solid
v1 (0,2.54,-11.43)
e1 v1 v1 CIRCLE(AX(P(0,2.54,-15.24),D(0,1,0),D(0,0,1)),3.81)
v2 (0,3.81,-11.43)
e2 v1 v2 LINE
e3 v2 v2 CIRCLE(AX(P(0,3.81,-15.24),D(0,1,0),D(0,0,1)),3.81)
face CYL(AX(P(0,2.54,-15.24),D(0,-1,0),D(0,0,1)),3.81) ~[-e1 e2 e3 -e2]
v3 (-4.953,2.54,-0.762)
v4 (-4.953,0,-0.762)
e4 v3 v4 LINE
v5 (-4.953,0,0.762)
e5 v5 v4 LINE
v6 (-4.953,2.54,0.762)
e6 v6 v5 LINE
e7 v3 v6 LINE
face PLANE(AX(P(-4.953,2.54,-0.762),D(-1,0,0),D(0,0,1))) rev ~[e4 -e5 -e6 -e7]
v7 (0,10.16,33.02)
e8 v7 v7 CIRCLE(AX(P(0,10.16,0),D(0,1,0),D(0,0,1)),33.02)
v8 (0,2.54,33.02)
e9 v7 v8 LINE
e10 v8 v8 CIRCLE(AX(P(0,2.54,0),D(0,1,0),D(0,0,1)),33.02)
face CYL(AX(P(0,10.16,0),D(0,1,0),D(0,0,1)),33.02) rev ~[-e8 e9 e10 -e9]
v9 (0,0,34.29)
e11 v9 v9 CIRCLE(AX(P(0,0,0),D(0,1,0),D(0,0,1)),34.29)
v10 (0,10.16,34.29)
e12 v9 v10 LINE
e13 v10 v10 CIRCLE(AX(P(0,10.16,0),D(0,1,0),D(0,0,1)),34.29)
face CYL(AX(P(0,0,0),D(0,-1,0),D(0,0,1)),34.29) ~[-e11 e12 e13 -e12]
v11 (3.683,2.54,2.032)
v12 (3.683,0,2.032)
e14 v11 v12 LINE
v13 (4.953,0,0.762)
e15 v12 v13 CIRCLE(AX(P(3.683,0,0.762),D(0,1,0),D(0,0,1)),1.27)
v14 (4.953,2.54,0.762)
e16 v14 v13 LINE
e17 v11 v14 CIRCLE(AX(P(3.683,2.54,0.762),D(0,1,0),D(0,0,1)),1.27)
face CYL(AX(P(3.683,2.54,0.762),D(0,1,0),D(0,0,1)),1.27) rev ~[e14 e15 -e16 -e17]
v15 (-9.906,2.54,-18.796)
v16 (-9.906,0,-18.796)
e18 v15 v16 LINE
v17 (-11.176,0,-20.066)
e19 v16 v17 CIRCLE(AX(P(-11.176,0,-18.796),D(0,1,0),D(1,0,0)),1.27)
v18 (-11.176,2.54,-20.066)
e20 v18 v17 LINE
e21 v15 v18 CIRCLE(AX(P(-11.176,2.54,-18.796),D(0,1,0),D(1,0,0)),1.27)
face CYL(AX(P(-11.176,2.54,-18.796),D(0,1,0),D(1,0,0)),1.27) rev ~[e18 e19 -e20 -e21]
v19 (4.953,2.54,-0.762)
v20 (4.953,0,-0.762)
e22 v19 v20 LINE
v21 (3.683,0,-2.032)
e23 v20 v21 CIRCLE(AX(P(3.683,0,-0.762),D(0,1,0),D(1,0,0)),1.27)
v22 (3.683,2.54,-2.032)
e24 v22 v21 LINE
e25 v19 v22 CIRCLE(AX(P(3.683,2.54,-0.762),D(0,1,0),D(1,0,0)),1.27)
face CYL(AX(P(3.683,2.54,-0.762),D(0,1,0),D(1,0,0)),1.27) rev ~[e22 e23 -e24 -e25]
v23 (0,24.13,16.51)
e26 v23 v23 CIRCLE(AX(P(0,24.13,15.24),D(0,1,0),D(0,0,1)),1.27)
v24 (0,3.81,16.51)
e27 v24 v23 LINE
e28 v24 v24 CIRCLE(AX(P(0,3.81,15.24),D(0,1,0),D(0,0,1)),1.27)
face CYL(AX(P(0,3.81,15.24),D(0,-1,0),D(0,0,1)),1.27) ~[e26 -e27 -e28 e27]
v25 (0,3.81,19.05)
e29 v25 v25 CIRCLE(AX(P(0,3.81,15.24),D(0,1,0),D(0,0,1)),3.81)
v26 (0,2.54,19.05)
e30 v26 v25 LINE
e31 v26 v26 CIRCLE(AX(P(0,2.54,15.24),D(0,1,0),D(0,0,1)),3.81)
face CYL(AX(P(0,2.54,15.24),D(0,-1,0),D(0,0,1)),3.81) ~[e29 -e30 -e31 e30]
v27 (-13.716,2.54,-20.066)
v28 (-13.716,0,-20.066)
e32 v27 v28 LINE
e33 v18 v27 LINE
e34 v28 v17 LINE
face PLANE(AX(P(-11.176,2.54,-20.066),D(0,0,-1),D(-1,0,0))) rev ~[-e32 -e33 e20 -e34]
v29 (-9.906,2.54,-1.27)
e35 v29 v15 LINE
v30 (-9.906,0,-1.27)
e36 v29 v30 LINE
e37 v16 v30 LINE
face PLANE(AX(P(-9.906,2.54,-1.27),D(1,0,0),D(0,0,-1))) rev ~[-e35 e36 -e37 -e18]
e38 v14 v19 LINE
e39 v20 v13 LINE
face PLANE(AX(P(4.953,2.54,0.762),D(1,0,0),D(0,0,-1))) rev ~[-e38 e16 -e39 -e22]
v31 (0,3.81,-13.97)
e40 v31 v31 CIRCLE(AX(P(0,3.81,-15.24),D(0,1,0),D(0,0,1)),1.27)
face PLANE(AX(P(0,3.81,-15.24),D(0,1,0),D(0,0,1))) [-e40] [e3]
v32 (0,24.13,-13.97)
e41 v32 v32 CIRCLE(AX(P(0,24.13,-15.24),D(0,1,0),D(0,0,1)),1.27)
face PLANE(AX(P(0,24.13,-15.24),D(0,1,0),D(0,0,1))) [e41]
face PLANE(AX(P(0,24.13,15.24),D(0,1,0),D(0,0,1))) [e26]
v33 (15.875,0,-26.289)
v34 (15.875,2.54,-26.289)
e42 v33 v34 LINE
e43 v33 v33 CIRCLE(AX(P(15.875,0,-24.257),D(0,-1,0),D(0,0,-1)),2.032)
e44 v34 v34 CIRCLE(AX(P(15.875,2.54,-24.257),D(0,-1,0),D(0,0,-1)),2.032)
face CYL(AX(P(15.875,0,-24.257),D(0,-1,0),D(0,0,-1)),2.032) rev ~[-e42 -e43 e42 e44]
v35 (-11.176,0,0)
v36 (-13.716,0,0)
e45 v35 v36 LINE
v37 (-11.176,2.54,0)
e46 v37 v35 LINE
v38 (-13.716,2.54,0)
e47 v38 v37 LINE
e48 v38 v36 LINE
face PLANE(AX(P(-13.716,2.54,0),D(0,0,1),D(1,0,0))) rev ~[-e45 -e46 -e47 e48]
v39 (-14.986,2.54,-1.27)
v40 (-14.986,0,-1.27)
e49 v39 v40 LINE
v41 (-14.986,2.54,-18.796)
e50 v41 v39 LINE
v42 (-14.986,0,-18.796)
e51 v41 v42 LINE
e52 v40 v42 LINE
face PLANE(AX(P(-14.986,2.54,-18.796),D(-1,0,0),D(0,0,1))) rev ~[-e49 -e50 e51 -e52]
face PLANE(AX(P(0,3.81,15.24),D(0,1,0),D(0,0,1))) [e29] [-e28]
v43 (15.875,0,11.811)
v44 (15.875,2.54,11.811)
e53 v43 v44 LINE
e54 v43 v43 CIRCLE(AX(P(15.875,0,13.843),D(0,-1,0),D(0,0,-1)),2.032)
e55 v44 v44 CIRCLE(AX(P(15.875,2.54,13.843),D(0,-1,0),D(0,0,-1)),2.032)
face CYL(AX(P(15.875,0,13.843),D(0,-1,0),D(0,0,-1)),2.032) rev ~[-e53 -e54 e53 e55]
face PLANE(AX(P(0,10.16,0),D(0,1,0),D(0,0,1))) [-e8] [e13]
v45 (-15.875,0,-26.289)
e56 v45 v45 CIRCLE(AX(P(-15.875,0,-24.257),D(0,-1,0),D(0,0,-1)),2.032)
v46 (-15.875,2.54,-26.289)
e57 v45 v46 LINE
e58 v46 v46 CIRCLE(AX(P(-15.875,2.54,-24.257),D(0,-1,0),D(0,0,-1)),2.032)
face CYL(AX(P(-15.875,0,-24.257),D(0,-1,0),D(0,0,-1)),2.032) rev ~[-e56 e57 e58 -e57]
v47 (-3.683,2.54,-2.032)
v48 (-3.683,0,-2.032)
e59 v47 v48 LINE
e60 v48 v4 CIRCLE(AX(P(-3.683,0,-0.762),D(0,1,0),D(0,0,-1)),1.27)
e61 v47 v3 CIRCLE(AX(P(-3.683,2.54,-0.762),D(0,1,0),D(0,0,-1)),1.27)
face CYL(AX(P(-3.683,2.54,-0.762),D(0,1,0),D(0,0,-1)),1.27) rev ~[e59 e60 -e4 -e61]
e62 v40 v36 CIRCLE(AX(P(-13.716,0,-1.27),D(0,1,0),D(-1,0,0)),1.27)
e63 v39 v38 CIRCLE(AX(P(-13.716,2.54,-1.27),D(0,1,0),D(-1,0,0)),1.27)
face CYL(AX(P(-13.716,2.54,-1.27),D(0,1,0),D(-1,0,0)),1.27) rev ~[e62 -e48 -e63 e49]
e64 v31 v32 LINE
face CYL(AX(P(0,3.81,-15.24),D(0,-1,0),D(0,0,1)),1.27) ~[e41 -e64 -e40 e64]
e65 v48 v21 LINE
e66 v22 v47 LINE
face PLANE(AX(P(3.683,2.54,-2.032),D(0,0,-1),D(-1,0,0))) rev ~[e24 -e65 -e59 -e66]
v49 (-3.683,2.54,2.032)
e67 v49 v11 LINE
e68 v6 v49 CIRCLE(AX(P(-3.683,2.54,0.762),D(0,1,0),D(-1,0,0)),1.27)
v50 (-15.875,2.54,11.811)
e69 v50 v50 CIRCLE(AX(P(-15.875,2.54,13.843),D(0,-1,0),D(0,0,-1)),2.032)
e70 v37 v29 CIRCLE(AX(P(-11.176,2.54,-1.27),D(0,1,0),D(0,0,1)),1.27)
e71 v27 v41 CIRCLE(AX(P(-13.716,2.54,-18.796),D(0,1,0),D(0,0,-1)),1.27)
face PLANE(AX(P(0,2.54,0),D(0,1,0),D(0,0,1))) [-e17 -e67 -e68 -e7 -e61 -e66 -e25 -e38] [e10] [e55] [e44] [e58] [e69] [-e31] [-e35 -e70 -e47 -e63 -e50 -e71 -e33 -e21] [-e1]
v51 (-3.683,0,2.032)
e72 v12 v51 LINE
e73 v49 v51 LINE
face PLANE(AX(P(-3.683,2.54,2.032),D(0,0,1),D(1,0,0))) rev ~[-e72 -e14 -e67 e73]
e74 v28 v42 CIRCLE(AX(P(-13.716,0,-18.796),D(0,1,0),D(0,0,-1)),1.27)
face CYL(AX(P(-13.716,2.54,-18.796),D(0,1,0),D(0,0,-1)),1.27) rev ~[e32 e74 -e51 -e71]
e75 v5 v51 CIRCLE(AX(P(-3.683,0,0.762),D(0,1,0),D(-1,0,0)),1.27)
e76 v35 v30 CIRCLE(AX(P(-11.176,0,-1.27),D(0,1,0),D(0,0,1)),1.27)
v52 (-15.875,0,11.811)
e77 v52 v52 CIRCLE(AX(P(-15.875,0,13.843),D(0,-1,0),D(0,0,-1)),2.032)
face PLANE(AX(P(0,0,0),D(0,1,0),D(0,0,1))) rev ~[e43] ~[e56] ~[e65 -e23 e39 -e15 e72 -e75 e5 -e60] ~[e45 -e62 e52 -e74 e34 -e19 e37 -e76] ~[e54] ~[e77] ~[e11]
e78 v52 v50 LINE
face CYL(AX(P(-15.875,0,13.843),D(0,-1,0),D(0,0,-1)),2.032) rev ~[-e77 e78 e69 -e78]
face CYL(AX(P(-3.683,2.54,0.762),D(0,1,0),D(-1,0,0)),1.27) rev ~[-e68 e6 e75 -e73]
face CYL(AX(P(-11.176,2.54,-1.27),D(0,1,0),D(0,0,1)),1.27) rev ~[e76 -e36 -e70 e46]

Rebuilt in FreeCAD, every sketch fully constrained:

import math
import FreeCAD as App
import Part
import Sketcher
Q = App.Units.Quantity

doc = App.newDocument("Part")
body = doc.addObject("PartDesign::Body", "Body")

# Sketch on XZ plane
sketch1 = body.newObject("Sketcher::SketchObject", "Sketch")
sketch1.AttachmentSupport = (doc.getObject("XZ_Plane"), [""])
sketch1.MapMode = "FlatFace"
sketch1.addGeometry(Part.Circle(App.Vector(0, 0, 0), App.Vector(0, 0, 1), 34.29), False)
sketch1.addConstraint(Sketcher.Constraint("Coincident", 0, 3, -1, 1))
sketch1.addConstraint(Sketcher.Constraint("Diameter", 0, Q("2.7 in")))
pad1 = body.newObject("PartDesign::Pad", "Pad")
pad1.Profile = sketch1
pad1.Length = Q("0.4 in")
pad1.Reversed = True

# Sketch on XZ plane
sketch2 = body.newObject("Sketcher::SketchObject", "Sketch001")
sketch2.AttachmentSupport = (doc.getObject("XZ_Plane"), [""])
sketch2.MapMode = "FlatFace"
sketch2.AttachmentOffset = App.Placement(App.Vector(0, 0, -0.4 * 25.4), App.Rotation())
sketch2.addGeometry(Part.Circle(App.Vector(0, 0, 0), App.Vector(0, 0, 1), 33.02), False)
sketch2.addConstraint(Sketcher.Constraint("Coincident", 0, 3, -1, 1))
sketch2.addConstraint(Sketcher.Constraint("Diameter", 0, Q("2.6 in")))
pocket1 = body.newObject("PartDesign::Pocket", "Pocket")
pocket1.Profile = sketch2
pocket1.Length = Q("0.3 in")
pocket1.Reversed = True

# Sketch on XZ plane
sketch3 = body.newObject("Sketcher::SketchObject", "Sketch002")
sketch3.AttachmentSupport = (doc.getObject("XZ_Plane"), [""])
sketch3.MapMode = "FlatFace"
sketch3.AttachmentOffset = App.Placement(App.Vector(0, 0, -0.1 * 25.4), App.Rotation())
sketch3.addGeometry(Part.Circle(App.Vector(0, 15.24, 0), App.Vector(0, 0, 1), 3.81), False)
sketch3.addGeometry(Part.Circle(App.Vector(0, -15.24, 0), App.Vector(0, 0, 1), 3.81), False)
sketch3.addConstraint(Sketcher.Constraint("Equal", 0, 1))
sketch3.addConstraint(Sketcher.Constraint("Symmetric", 0, 3, 1, 3, -1, 1))
sketch3.addConstraint(Sketcher.Constraint("PointOnObject", 0, 3, -2))
sketch3.addConstraint(Sketcher.Constraint("Diameter", 0, Q("0.3 in")))
sketch3.addConstraint(Sketcher.Constraint("DistanceY", -1, 1, 0, 3, Q("0.6 in")))
pad2 = body.newObject("PartDesign::Pad", "Pad001")
pad2.Profile = sketch3
pad2.Length = Q("0.05 in")
pad2.Reversed = True

# Sketch on XZ plane
sketch4 = body.newObject("Sketcher::SketchObject", "Sketch003")
sketch4.AttachmentSupport = (doc.getObject("XZ_Plane"), [""])
sketch4.MapMode = "FlatFace"
sketch4.AttachmentOffset = App.Placement(App.Vector(0, 0, -0.15 * 25.4), App.Rotation())
sketch4.addGeometry(Part.Circle(App.Vector(0, 15.24, 0), App.Vector(0, 0, 1), 1.27), False)
sketch4.addGeometry(Part.Circle(App.Vector(0, -15.24, 0), App.Vector(0, 0, 1), 1.27), False)
sketch4.addConstraint(Sketcher.Constraint("Equal", 0, 1))
sketch4.addConstraint(Sketcher.Constraint("Symmetric", 0, 3, 1, 3, -1, 1))
sketch4.addConstraint(Sketcher.Constraint("PointOnObject", 0, 3, -2))
sketch4.addConstraint(Sketcher.Constraint("Diameter", 0, Q("0.1 in")))
sketch4.addConstraint(Sketcher.Constraint("DistanceY", -1, 1, 0, 3, Q("0.6 in")))
pad3 = body.newObject("PartDesign::Pad", "Pad002")
pad3.Profile = sketch4
pad3.Length = Q("0.8 in")
pad3.Reversed = True

# Sketch on XZ plane
sketch5 = body.newObject("Sketcher::SketchObject", "Sketch004")
sketch5.AttachmentSupport = (doc.getObject("XZ_Plane"), [""])
sketch5.MapMode = "FlatFace"
sketch5.AttachmentOffset = App.Placement(App.Vector(0, 0, -0.1 * 25.4), App.Rotation())
sketch5.addGeometry(Part.LineSegment(App.Vector(3.683, -2.032, 0), App.Vector(-3.683, -2.032, 0)), False)
sketch5.addGeometry(Part.ArcOfCircle(Part.Circle(App.Vector(-3.683, -0.762, 0), App.Vector(0, 0, 1), 1.27), math.radians(180), math.radians(270)), False)
sketch5.addGeometry(Part.LineSegment(App.Vector(-4.953, -0.762, 0), App.Vector(-4.953, 0.762, 0)), False)
sketch5.addGeometry(Part.ArcOfCircle(Part.Circle(App.Vector(-3.683, 0.762, 0), App.Vector(0, 0, 1), 1.27), math.radians(90), math.radians(180)), False)
sketch5.addGeometry(Part.LineSegment(App.Vector(-3.683, 2.032, 0), App.Vector(3.683, 2.032, 0)), False)
sketch5.addGeometry(Part.ArcOfCircle(Part.Circle(App.Vector(3.683, 0.762, 0), App.Vector(0, 0, 1), 1.27), math.radians(0), math.radians(90)), False)
sketch5.addGeometry(Part.LineSegment(App.Vector(4.953, 0.762, 0), App.Vector(4.953, -0.762, 0)), False)
sketch5.addGeometry(Part.ArcOfCircle(Part.Circle(App.Vector(3.683, -0.762, 0), App.Vector(0, 0, 1), 1.27), math.radians(-90), math.radians(0)), False)
sketch5.addConstraint(Sketcher.Constraint("Tangent", 0, 2, 1, 2))
sketch5.addConstraint(Sketcher.Constraint("Tangent", 1, 1, 2, 1))
sketch5.addConstraint(Sketcher.Constraint("Tangent", 2, 2, 3, 2))
sketch5.addConstraint(Sketcher.Constraint("Tangent", 3, 1, 4, 1))
sketch5.addConstraint(Sketcher.Constraint("Tangent", 4, 2, 5, 2))
sketch5.addConstraint(Sketcher.Constraint("Tangent", 5, 1, 6, 1))
sketch5.addConstraint(Sketcher.Constraint("Tangent", 6, 2, 7, 2))
sketch5.addConstraint(Sketcher.Constraint("Tangent", 7, 1, 0, 1))
sketch5.addConstraint(Sketcher.Constraint("Horizontal", 0))
sketch5.addConstraint(Sketcher.Constraint("Vertical", 2))
sketch5.addConstraint(Sketcher.Constraint("Horizontal", 4))
sketch5.addConstraint(Sketcher.Constraint("Vertical", 6))
sketch5.addConstraint(Sketcher.Constraint("Equal", 1, 3))
sketch5.addConstraint(Sketcher.Constraint("Equal", 3, 5))
sketch5.addConstraint(Sketcher.Constraint("Equal", 5, 7))
sketch5.addConstraint(Sketcher.Constraint("Symmetric", 1, 3, 5, 3, -1, 1))
sketch5.addConstraint(Sketcher.Constraint("Radius", 1, Q("0.05 in")))
sketch5.addConstraint(Sketcher.Constraint("DistanceX", 0, 2, 0, 1, Q("0.29 in")))
sketch5.addConstraint(Sketcher.Constraint("DistanceY", 2, 1, 2, 2, Q("0.06 in")))
pocket2 = body.newObject("PartDesign::Pocket", "Pocket001")
pocket2.Profile = sketch5
pocket2.Type = "UpToFirst"
pocket2.Reversed = True

# Sketch on XZ plane
sketch6 = body.newObject("Sketcher::SketchObject", "Sketch005")
sketch6.AttachmentSupport = (doc.getObject("XZ_Plane"), [""])
sketch6.MapMode = "FlatFace"
sketch6.AttachmentOffset = App.Placement(App.Vector(0, 0, -0.1 * 25.4), App.Rotation())
sketch6.addGeometry(Part.LineSegment(App.Vector(-13.716, 0, 0), App.Vector(-11.176, 0, 0)), False)
sketch6.addGeometry(Part.ArcOfCircle(Part.Circle(App.Vector(-11.176, -1.27, 0), App.Vector(0, 0, 1), 1.27), math.radians(0), math.radians(90)), False)
sketch6.addGeometry(Part.LineSegment(App.Vector(-9.906, -1.27, 0), App.Vector(-9.906, -18.796, 0)), False)
sketch6.addGeometry(Part.ArcOfCircle(Part.Circle(App.Vector(-11.176, -18.796, 0), App.Vector(0, 0, 1), 1.27), math.radians(-90), math.radians(0)), False)
sketch6.addGeometry(Part.LineSegment(App.Vector(-11.176, -20.066, 0), App.Vector(-13.716, -20.066, 0)), False)
sketch6.addGeometry(Part.ArcOfCircle(Part.Circle(App.Vector(-13.716, -18.796, 0), App.Vector(0, 0, 1), 1.27), math.radians(180), math.radians(270)), False)
sketch6.addGeometry(Part.LineSegment(App.Vector(-14.986, -18.796, 0), App.Vector(-14.986, -1.27, 0)), False)
sketch6.addGeometry(Part.ArcOfCircle(Part.Circle(App.Vector(-13.716, -1.27, 0), App.Vector(0, 0, 1), 1.27), math.radians(90), math.radians(180)), False)
sketch6.addConstraint(Sketcher.Constraint("Tangent", 0, 2, 1, 2))
sketch6.addConstraint(Sketcher.Constraint("Tangent", 1, 1, 2, 1))
sketch6.addConstraint(Sketcher.Constraint("Tangent", 2, 2, 3, 2))
sketch6.addConstraint(Sketcher.Constraint("Tangent", 3, 1, 4, 1))
sketch6.addConstraint(Sketcher.Constraint("Tangent", 4, 2, 5, 2))
sketch6.addConstraint(Sketcher.Constraint("Tangent", 5, 1, 6, 1))
sketch6.addConstraint(Sketcher.Constraint("Tangent", 6, 2, 7, 2))
sketch6.addConstraint(Sketcher.Constraint("Tangent", 7, 1, 0, 1))
sketch6.addConstraint(Sketcher.Constraint("Horizontal", 0))
sketch6.addConstraint(Sketcher.Constraint("Vertical", 2))
sketch6.addConstraint(Sketcher.Constraint("Horizontal", 4))
sketch6.addConstraint(Sketcher.Constraint("Vertical", 6))
sketch6.addConstraint(Sketcher.Constraint("Equal", 1, 3))
sketch6.addConstraint(Sketcher.Constraint("Equal", 3, 5))
sketch6.addConstraint(Sketcher.Constraint("Equal", 5, 7))
sketch6.addConstraint(Sketcher.Constraint("PointOnObject", 0, 2, -1))
sketch6.addConstraint(Sketcher.Constraint("Radius", 1, Q("0.05 in")))
sketch6.addConstraint(Sketcher.Constraint("DistanceX", 0, 1, 0, 2, Q("0.1 in")))
sketch6.addConstraint(Sketcher.Constraint("DistanceY", 2, 2, 2, 1, Q("0.69 in")))
sketch6.addConstraint(Sketcher.Constraint("DistanceX", 1, 3, -1, 1, Q("0.44 in")))
pocket3 = body.newObject("PartDesign::Pocket", "Pocket002")
pocket3.Profile = sketch6
pocket3.Type = "UpToFirst"
pocket3.Reversed = True

# Sketch on XZ plane
sketch7 = body.newObject("Sketcher::SketchObject", "Sketch006")
sketch7.AttachmentSupport = (doc.getObject("XZ_Plane"), [""])
sketch7.MapMode = "FlatFace"
sketch7.addGeometry(Part.Circle(App.Vector(15.875, 13.843, 0), App.Vector(0, 0, 1), 2.032), False)
sketch7.addConstraint(Sketcher.Constraint("Diameter", 0, Q("0.16 in")))
sketch7.addConstraint(Sketcher.Constraint("DistanceX", -1, 1, 0, 3, Q("0.625 in")))
sketch7.addConstraint(Sketcher.Constraint("DistanceY", -1, 1, 0, 3, Q("0.545 in")))
pocket4 = body.newObject("PartDesign::Pocket", "Pocket003")
pocket4.Profile = sketch7
pocket4.Type = "UpToFirst"

# Sketch on XZ plane
sketch8 = body.newObject("Sketcher::SketchObject", "Sketch007")
sketch8.AttachmentSupport = (doc.getObject("XZ_Plane"), [""])
sketch8.MapMode = "FlatFace"
sketch8.addGeometry(Part.Circle(App.Vector(-15.875, 13.843, 0), App.Vector(0, 0, 1), 2.032), False)
sketch8.addConstraint(Sketcher.Constraint("Diameter", 0, Q("0.16 in")))
sketch8.addConstraint(Sketcher.Constraint("DistanceX", 0, 3, -1, 1, Q("0.625 in")))
sketch8.addConstraint(Sketcher.Constraint("DistanceY", -1, 1, 0, 3, Q("0.545 in")))
pocket5 = body.newObject("PartDesign::Pocket", "Pocket004")
pocket5.Profile = sketch8
pocket5.Type = "UpToFirst"

# Sketch on XZ plane
sketch9 = body.newObject("Sketcher::SketchObject", "Sketch008")
sketch9.AttachmentSupport = (doc.getObject("XZ_Plane"), [""])
sketch9.MapMode = "FlatFace"
sketch9.addGeometry(Part.Circle(App.Vector(-15.875, -24.257, 0), App.Vector(0, 0, 1), 2.032), False)
sketch9.addConstraint(Sketcher.Constraint("Diameter", 0, Q("0.16 in")))
sketch9.addConstraint(Sketcher.Constraint("DistanceX", 0, 3, -1, 1, Q("0.625 in")))
sketch9.addConstraint(Sketcher.Constraint("DistanceY", 0, 3, -1, 1, Q("0.955 in")))
pocket6 = body.newObject("PartDesign::Pocket", "Pocket005")
pocket6.Profile = sketch9
pocket6.Type = "UpToFirst"

# Sketch on XZ plane
sketch10 = body.newObject("Sketcher::SketchObject", "Sketch009")
sketch10.AttachmentSupport = (doc.getObject("XZ_Plane"), [""])
sketch10.MapMode = "FlatFace"
sketch10.addGeometry(Part.Circle(App.Vector(15.875, -24.257, 0), App.Vector(0, 0, 1), 2.032), False)
sketch10.addConstraint(Sketcher.Constraint("Diameter", 0, Q("0.16 in")))
sketch10.addConstraint(Sketcher.Constraint("DistanceX", -1, 1, 0, 3, Q("0.625 in")))
sketch10.addConstraint(Sketcher.Constraint("DistanceY", 0, 3, -1, 1, Q("0.955 in")))
pocket7 = body.newObject("PartDesign::Pocket", "Pocket006")
pocket7.Profile = sketch10
pocket7.Type = "UpToFirst"

doc.recompute()
